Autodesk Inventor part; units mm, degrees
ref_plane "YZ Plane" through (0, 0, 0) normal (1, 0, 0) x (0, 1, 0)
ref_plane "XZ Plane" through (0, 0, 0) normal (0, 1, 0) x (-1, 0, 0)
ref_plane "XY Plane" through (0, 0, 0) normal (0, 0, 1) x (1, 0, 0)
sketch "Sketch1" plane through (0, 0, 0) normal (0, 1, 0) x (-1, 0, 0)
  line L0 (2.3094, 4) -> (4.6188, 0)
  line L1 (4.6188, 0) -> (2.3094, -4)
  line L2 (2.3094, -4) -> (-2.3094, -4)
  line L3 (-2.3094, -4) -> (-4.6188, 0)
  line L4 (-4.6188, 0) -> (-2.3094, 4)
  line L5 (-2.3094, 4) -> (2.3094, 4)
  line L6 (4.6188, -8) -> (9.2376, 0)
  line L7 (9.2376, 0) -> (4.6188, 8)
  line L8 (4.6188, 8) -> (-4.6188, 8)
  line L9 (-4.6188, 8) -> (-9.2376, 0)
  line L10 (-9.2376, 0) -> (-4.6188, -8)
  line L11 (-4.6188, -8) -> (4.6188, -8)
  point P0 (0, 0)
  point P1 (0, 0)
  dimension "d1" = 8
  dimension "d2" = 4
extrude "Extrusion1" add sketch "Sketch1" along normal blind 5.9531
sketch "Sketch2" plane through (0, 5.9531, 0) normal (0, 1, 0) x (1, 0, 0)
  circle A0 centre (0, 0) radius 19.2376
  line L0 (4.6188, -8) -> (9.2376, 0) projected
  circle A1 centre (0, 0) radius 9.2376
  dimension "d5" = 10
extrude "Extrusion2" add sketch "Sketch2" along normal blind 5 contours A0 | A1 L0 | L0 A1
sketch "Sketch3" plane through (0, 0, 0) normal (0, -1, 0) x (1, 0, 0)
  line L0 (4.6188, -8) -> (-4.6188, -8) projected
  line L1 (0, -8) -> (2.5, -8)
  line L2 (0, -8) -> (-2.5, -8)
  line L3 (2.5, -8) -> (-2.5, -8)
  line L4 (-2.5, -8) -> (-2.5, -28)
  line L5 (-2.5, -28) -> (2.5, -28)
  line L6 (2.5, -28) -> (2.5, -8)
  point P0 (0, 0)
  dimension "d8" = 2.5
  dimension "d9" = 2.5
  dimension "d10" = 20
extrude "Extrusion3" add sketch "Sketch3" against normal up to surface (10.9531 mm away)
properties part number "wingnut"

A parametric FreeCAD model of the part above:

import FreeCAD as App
import Part
import Sketcher
Q = App.Units.Quantity

doc = App.newDocument("Part")
body = doc.addObject("PartDesign::Body", "Body")

# Sketch on XZ plane
sketch1 = body.newObject("Sketcher::SketchObject", "Sketch")
sketch1.AttachmentSupport = (doc.getObject("XZ_Plane"), [""])
sketch1.MapMode = "FlatFace"
sketch1.addGeometry([
    Part.LineSegment(App.Vector(4.6, -8, 0), App.Vector(-4.6, -8, 0)),  # 0
    Part.LineSegment(App.Vector(-4.6, -8, 0), App.Vector(-9.2, 0, 0)),  # 1
    Part.LineSegment(App.Vector(-9.2, 0, 0), App.Vector(-4.6, 8, 0)),  # 2
    Part.LineSegment(App.Vector(-4.6, 8, 0), App.Vector(4.6, 8, 0)),  # 3
    Part.LineSegment(App.Vector(4.6, 8, 0), App.Vector(9.2, 0, 0)),  # 4
    Part.LineSegment(App.Vector(9.2, 0, 0), App.Vector(4.6, -8, 0)),  # 5
    Part.LineSegment(App.Vector(2.3, 4, 0), App.Vector(-2.3, 4, 0)),  # 6
    Part.LineSegment(App.Vector(-2.3, 4, 0), App.Vector(-4.6, 0, 0)),  # 7
    Part.LineSegment(App.Vector(-4.6, 0, 0), App.Vector(-2.3, -4, 0)),  # 8
    Part.LineSegment(App.Vector(-2.3, -4, 0), App.Vector(2.3, -4, 0)),  # 9
    Part.LineSegment(App.Vector(2.3, -4, 0), App.Vector(4.6, 0, 0)),  # 10
    Part.LineSegment(App.Vector(4.6, 0, 0), App.Vector(2.3, 4, 0)),  # 11
], False)
sketch1.addConstraint([
    Sketcher.Constraint("Coincident", 0, 2, 1, 1),
    Sketcher.Constraint("Coincident", 1, 2, 2, 1),
    Sketcher.Constraint("Coincident", 2, 2, 3, 1),
    Sketcher.Constraint("Coincident", 3, 2, 4, 1),
    Sketcher.Constraint("Coincident", 4, 2, 5, 1),
    Sketcher.Constraint("Coincident", 5, 2, 0, 1),
    Sketcher.Constraint("Coincident", 6, 2, 7, 1),
    Sketcher.Constraint("Coincident", 7, 2, 8, 1),
    Sketcher.Constraint("Coincident", 8, 2, 9, 1),
    Sketcher.Constraint("Coincident", 9, 2, 10, 1),
    Sketcher.Constraint("Coincident", 10, 2, 11, 1),
    Sketcher.Constraint("Coincident", 11, 2, 6, 1),
    Sketcher.Constraint("Horizontal", 0),
    Sketcher.Constraint("Horizontal", 3),
    Sketcher.Constraint("Horizontal", 6),
    Sketcher.Constraint("Horizontal", 9),
    Sketcher.Constraint("Symmetric", 0, 2, 3, 2, -1, 1),
    Sketcher.Constraint("Symmetric", 1, 2, 4, 2, -1, 1),
    Sketcher.Constraint("Symmetric", 6, 2, 9, 2, -1, 1),
    Sketcher.Constraint("Symmetric", 7, 2, 10, 2, -1, 1),
    Sketcher.Constraint("PointOnObject", 1, 2, -1),
    Sketcher.Constraint("PointOnObject", 7, 2, -1),
    Sketcher.Constraint("Parallel", 2, 5),
    Sketcher.Constraint("Parallel", 5, 7),
    Sketcher.Constraint("Parallel", 4, 8),
    Sketcher.Constraint("Parallel", 8, 11),
    Sketcher.Constraint("Vertical", 0, 2, 2, 2),
    Sketcher.Constraint("Vertical", 2, 2, 7, 2),
    Sketcher.Constraint("DistanceY", 0, 2, -1, 1, Q("8 mm")),
    Sketcher.Constraint("DistanceY", -1, 1, 6, 2, Q("4 mm")),
    Sketcher.Constraint("Angle", 1, Q("120 deg")),
    Sketcher.Constraint("DistanceX", 0, 2, 0, 1, Q("9.2376 mm")),
])
pad1 = body.newObject("PartDesign::Pad", "Pad")
pad1.Profile = sketch1
pad1.Length = 5.9531
pad1.Reversed = True

# Sketch on XZ plane
sketch2 = body.newObject("Sketcher::SketchObject", "Sketch001")
sketch2.AttachmentSupport = (doc.getObject("XZ_Plane"), [""])
sketch2.MapMode = "FlatFace"
sketch2.AttachmentOffset = App.Placement(App.Vector(0, 0, -5.9531), App.Rotation())
sketch2.addGeometry(Part.Circle(App.Vector(0, 0, 0), App.Vector(0, 0, 1), 19), False)
sketch2.addConstraint([
    Sketcher.Constraint("Coincident", 0, 3, -1, 1),
    Sketcher.Constraint("Diameter", 0, Q("38.4752 mm")),
])
pad2 = body.newObject("PartDesign::Pad", "Pad001")
pad2.Profile = sketch2
pad2.Length = 5
pad2.Reversed = True

# Sketch on XZ plane
sketch3 = body.newObject("Sketcher::SketchObject", "Sketch002")
sketch3.AttachmentSupport = (doc.getObject("XZ_Plane"), [""])
sketch3.MapMode = "FlatFace"
sketch3.addGeometry([
    Part.LineSegment(App.Vector(2, -28, 0), App.Vector(2, -8, 0)),
    Part.LineSegment(App.Vector(2, -8, 0), App.Vector(-2, -8, 0)),
    Part.LineSegment(App.Vector(-2, -8, 0), App.Vector(-2, -28, 0)),
    Part.LineSegment(App.Vector(-2, -28, 0), App.Vector(2, -28, 0)),
], False)
sketch3.addConstraint([
    Sketcher.Constraint("Coincident", 0, 2, 1, 1),
    Sketcher.Constraint("Coincident", 1, 2, 2, 1),
    Sketcher.Constraint("Coincident", 2, 2, 3, 1),
    Sketcher.Constraint("Coincident", 3, 2, 0, 1),
    Sketcher.Constraint("Vertical", 0),
    Sketcher.Constraint("Horizontal", 1),
    Sketcher.Constraint("Vertical", 2),
    Sketcher.Constraint("Horizontal", 3),
    Sketcher.Constraint("DistanceY", 0, 1, 0, 2, Q("20 mm")),
    Sketcher.Constraint("DistanceX", -1, 1, 0, 2, Q("2.5 mm")),
    Sketcher.Constraint("DistanceX", 1, 2, -1, 1, Q("2.5 mm")),
    Sketcher.Constraint("DistanceY", 0, 2, -1, 1, Q("8 mm")),
])
pad3 = body.newObject("PartDesign::Pad", "Pad002")
pad3.Profile = sketch3
pad3.Length = 10.9531
pad3.Reversed = True

doc.recompute()
